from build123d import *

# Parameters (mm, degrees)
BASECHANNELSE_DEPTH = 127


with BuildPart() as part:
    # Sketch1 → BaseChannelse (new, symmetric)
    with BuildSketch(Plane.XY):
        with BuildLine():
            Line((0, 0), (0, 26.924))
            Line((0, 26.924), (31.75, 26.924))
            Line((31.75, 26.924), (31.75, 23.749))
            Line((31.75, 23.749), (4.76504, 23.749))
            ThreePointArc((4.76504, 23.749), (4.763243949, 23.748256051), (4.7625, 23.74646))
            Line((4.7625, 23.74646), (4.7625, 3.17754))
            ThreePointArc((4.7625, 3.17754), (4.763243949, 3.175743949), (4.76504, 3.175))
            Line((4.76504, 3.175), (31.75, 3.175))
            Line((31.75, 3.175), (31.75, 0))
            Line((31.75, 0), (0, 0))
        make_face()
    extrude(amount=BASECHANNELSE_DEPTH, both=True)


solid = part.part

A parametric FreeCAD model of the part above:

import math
import FreeCAD as App
import Part
import Sketcher
from FreeCAD import Vector
Q = App.Units.Quantity

doc = App.newDocument("Part")
body = doc.addObject("PartDesign::Body", "Body")

# Sketch on XY plane
sketch1 = body.newObject("Sketcher::SketchObject", "Sketch")
sketch1.AttachmentSupport = (doc.getObject("XY_Plane"), [""])
sketch1.MapMode = "FlatFace"
sketch1.addGeometry([
    Part.LineSegment(Vector(0, 26.924, 0), Vector(0, 0, 0)),  # 0
    Part.LineSegment(Vector(0, 0, 0), Vector(31.75, 0, 0)),  # 1
    Part.LineSegment(Vector(31.75, 0, 0), Vector(31.75, 3.175, 0)),  # 2
    Part.LineSegment(Vector(31.75, 3.175, 0), Vector(4.765, 3.175, 0)),  # 3
    Part.ArcOfCircle(Part.Circle(Vector(4.765, 3.1775, 0), Vector(0, 0, 1), 0.0025), math.radians(-180), math.radians(-90)),  # 4
    Part.LineSegment(Vector(4.7625, 3.1775, 0), Vector(4.7625, 23.7465, 0)),  # 5
    Part.ArcOfCircle(Part.Circle(Vector(4.765, 23.7465, 0), Vector(0, 0, 1), 0.0025), math.radians(90), math.radians(180)),  # 6
    Part.LineSegment(Vector(4.765, 23.749, 0), Vector(31.75, 23.749, 0)),  # 7
    Part.LineSegment(Vector(31.75, 23.749, 0), Vector(31.75, 26.924, 0)),  # 8
    Part.LineSegment(Vector(31.75, 26.924, 0), Vector(0, 26.924, 0)),  # 9
], False)
sketch1.addConstraint([
    Sketcher.Constraint("Coincident", 0, 2, 1, 1),
    Sketcher.Constraint("Coincident", 1, 2, 2, 1),
    Sketcher.Constraint("Coincident", 2, 2, 3, 1),
    Sketcher.Constraint("Tangent", 3, 2, 4, 2),
    Sketcher.Constraint("Tangent", 4, 1, 5, 1),
    Sketcher.Constraint("Tangent", 5, 2, 6, 2),
    Sketcher.Constraint("Tangent", 6, 1, 7, 1),
    Sketcher.Constraint("Coincident", 7, 2, 8, 1),
    Sketcher.Constraint("Coincident", 8, 2, 9, 1),
    Sketcher.Constraint("Coincident", 9, 2, 0, 1),
    Sketcher.Constraint("Vertical", 0),
    Sketcher.Constraint("Horizontal", 1),
    Sketcher.Constraint("Vertical", 2),
    Sketcher.Constraint("Horizontal", 3),
    Sketcher.Constraint("Vertical", 5),
    Sketcher.Constraint("Horizontal", 7),
    Sketcher.Constraint("Vertical", 8),
    Sketcher.Constraint("Horizontal", 9),
    Sketcher.Constraint("Coincident", 0, 2, -1, 1),
    Sketcher.Constraint("Equal", 4, 6),
    Sketcher.Constraint("Vertical", 2, 2, 7, 2),
    Sketcher.Constraint("Equal", 2, 8),
    Sketcher.Constraint("DistanceX", 1, 1, 1, 2, Q("1.25 in")),
    Sketcher.Constraint("DistanceY", 0, 2, 0, 1, Q("1.06 in")),
    Sketcher.Constraint("Radius", 4, Q("0.0001 in")),
    Sketcher.Constraint("DistanceY", 2, 1, 2, 2, Q("0.125 in")),
    Sketcher.Constraint("DistanceX", 3, 2, 3, 1, Q("1.0624 in")),
])
pad1 = body.newObject("PartDesign::Pad", "Pad")
pad1.Profile = sketch1
pad1.Length = Q("10 in")
pad1.Midplane = True

doc.recompute()
